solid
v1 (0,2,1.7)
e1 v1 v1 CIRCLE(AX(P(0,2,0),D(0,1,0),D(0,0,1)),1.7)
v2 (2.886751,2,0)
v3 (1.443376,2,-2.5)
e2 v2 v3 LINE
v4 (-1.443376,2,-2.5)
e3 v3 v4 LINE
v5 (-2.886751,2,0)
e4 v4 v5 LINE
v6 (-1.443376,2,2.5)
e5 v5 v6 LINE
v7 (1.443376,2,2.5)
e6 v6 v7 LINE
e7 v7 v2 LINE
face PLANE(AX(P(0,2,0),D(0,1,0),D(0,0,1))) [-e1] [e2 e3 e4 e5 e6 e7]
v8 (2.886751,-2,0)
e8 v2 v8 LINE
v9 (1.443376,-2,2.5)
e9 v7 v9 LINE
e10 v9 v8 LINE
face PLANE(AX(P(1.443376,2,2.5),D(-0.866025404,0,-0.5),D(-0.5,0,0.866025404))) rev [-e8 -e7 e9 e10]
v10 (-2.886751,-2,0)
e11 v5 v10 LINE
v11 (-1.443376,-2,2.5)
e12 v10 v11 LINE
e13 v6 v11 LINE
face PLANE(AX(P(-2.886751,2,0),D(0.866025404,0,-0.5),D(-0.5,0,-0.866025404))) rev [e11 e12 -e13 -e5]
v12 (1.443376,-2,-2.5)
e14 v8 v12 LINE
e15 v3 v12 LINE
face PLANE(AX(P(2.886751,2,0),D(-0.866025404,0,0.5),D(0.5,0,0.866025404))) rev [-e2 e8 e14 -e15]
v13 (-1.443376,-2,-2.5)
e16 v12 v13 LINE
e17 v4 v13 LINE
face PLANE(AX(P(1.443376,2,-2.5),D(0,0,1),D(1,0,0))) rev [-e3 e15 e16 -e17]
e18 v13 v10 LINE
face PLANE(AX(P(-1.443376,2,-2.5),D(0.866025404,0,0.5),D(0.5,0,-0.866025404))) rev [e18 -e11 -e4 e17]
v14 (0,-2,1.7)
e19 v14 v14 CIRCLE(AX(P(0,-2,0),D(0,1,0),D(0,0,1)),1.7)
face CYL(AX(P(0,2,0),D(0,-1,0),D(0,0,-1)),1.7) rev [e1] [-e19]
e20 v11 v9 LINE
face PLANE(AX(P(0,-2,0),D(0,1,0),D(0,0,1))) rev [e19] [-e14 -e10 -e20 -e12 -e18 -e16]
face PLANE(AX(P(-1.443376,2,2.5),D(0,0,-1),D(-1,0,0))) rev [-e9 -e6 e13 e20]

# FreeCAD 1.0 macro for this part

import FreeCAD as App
import Part
import Sketcher

V = App.Vector
Q = App.Units.Quantity


def add_polygon(sketch, points):
    """Adds a closed chain of lines whose ends are joined by coincident constraints."""
    first, n = sketch.GeometryCount, len(points)
    for a, b in zip(points, points[1:] + points[:1]):
        sketch.addGeometry(Part.LineSegment(App.Vector(*a, 0), App.Vector(*b, 0)), False)
    for i in range(n):
        sketch.addConstraint(Sketcher.Constraint("Coincident", first + i, 2, first + (i + 1) % n, 1))

doc = App.newDocument("Part")
body = doc.addObject("PartDesign::Body", "Body")

sketch1 = body.newObject("Sketcher::SketchObject", "Sketch")
sketch1.AttachmentSupport = (doc.getObject("XZ_Plane"), [""])
sketch1.MapMode = "FlatFace"
add_polygon(sketch1, [(-2.9, 0), (-1.4, 2.5), (1.4, 2.5), (2.9, 0), (1.4, -2.5), (-1.4, -2.5)])
sketch1.addGeometry(Part.Circle(V(0, 0, 0), V(0, 0, 1), 1.7), False)
sketch1.addConstraint(Sketcher.Constraint("Horizontal", 1))
sketch1.addConstraint(Sketcher.Constraint("Horizontal", 4))
sketch1.addConstraint(Sketcher.Constraint("Coincident", 6, 3, -1, 1))
sketch1.addConstraint(Sketcher.Constraint("Symmetric", 0, 2, 3, 2, -1, 1))
sketch1.addConstraint(Sketcher.Constraint("Symmetric", 2, 2, 5, 2, -1, 1))
sketch1.addConstraint(Sketcher.Constraint("PointOnObject", 2, 2, -1))
sketch1.addConstraint(Sketcher.Constraint("Parallel", 2, 5))
sketch1.addConstraint(Sketcher.Constraint("Vertical", 1, 2, 3, 2))
sketch1.addConstraint(Sketcher.Constraint("Diameter", 6, 3.4))
sketch1.addConstraint(Sketcher.Constraint("Angle", 0, Q("60 deg")))
sketch1.addConstraint(Sketcher.Constraint("DistanceY", 3, 2, 1, 2, 5.0))
sketch1.addConstraint(Sketcher.Constraint("DistanceX", 1, 1, 1, 2, 2.886751))
pad1 = body.newObject("PartDesign::Pad", "Pad")
pad1.Profile = sketch1
pad1.Length = 4
pad1.Midplane = True

doc.recompute()
